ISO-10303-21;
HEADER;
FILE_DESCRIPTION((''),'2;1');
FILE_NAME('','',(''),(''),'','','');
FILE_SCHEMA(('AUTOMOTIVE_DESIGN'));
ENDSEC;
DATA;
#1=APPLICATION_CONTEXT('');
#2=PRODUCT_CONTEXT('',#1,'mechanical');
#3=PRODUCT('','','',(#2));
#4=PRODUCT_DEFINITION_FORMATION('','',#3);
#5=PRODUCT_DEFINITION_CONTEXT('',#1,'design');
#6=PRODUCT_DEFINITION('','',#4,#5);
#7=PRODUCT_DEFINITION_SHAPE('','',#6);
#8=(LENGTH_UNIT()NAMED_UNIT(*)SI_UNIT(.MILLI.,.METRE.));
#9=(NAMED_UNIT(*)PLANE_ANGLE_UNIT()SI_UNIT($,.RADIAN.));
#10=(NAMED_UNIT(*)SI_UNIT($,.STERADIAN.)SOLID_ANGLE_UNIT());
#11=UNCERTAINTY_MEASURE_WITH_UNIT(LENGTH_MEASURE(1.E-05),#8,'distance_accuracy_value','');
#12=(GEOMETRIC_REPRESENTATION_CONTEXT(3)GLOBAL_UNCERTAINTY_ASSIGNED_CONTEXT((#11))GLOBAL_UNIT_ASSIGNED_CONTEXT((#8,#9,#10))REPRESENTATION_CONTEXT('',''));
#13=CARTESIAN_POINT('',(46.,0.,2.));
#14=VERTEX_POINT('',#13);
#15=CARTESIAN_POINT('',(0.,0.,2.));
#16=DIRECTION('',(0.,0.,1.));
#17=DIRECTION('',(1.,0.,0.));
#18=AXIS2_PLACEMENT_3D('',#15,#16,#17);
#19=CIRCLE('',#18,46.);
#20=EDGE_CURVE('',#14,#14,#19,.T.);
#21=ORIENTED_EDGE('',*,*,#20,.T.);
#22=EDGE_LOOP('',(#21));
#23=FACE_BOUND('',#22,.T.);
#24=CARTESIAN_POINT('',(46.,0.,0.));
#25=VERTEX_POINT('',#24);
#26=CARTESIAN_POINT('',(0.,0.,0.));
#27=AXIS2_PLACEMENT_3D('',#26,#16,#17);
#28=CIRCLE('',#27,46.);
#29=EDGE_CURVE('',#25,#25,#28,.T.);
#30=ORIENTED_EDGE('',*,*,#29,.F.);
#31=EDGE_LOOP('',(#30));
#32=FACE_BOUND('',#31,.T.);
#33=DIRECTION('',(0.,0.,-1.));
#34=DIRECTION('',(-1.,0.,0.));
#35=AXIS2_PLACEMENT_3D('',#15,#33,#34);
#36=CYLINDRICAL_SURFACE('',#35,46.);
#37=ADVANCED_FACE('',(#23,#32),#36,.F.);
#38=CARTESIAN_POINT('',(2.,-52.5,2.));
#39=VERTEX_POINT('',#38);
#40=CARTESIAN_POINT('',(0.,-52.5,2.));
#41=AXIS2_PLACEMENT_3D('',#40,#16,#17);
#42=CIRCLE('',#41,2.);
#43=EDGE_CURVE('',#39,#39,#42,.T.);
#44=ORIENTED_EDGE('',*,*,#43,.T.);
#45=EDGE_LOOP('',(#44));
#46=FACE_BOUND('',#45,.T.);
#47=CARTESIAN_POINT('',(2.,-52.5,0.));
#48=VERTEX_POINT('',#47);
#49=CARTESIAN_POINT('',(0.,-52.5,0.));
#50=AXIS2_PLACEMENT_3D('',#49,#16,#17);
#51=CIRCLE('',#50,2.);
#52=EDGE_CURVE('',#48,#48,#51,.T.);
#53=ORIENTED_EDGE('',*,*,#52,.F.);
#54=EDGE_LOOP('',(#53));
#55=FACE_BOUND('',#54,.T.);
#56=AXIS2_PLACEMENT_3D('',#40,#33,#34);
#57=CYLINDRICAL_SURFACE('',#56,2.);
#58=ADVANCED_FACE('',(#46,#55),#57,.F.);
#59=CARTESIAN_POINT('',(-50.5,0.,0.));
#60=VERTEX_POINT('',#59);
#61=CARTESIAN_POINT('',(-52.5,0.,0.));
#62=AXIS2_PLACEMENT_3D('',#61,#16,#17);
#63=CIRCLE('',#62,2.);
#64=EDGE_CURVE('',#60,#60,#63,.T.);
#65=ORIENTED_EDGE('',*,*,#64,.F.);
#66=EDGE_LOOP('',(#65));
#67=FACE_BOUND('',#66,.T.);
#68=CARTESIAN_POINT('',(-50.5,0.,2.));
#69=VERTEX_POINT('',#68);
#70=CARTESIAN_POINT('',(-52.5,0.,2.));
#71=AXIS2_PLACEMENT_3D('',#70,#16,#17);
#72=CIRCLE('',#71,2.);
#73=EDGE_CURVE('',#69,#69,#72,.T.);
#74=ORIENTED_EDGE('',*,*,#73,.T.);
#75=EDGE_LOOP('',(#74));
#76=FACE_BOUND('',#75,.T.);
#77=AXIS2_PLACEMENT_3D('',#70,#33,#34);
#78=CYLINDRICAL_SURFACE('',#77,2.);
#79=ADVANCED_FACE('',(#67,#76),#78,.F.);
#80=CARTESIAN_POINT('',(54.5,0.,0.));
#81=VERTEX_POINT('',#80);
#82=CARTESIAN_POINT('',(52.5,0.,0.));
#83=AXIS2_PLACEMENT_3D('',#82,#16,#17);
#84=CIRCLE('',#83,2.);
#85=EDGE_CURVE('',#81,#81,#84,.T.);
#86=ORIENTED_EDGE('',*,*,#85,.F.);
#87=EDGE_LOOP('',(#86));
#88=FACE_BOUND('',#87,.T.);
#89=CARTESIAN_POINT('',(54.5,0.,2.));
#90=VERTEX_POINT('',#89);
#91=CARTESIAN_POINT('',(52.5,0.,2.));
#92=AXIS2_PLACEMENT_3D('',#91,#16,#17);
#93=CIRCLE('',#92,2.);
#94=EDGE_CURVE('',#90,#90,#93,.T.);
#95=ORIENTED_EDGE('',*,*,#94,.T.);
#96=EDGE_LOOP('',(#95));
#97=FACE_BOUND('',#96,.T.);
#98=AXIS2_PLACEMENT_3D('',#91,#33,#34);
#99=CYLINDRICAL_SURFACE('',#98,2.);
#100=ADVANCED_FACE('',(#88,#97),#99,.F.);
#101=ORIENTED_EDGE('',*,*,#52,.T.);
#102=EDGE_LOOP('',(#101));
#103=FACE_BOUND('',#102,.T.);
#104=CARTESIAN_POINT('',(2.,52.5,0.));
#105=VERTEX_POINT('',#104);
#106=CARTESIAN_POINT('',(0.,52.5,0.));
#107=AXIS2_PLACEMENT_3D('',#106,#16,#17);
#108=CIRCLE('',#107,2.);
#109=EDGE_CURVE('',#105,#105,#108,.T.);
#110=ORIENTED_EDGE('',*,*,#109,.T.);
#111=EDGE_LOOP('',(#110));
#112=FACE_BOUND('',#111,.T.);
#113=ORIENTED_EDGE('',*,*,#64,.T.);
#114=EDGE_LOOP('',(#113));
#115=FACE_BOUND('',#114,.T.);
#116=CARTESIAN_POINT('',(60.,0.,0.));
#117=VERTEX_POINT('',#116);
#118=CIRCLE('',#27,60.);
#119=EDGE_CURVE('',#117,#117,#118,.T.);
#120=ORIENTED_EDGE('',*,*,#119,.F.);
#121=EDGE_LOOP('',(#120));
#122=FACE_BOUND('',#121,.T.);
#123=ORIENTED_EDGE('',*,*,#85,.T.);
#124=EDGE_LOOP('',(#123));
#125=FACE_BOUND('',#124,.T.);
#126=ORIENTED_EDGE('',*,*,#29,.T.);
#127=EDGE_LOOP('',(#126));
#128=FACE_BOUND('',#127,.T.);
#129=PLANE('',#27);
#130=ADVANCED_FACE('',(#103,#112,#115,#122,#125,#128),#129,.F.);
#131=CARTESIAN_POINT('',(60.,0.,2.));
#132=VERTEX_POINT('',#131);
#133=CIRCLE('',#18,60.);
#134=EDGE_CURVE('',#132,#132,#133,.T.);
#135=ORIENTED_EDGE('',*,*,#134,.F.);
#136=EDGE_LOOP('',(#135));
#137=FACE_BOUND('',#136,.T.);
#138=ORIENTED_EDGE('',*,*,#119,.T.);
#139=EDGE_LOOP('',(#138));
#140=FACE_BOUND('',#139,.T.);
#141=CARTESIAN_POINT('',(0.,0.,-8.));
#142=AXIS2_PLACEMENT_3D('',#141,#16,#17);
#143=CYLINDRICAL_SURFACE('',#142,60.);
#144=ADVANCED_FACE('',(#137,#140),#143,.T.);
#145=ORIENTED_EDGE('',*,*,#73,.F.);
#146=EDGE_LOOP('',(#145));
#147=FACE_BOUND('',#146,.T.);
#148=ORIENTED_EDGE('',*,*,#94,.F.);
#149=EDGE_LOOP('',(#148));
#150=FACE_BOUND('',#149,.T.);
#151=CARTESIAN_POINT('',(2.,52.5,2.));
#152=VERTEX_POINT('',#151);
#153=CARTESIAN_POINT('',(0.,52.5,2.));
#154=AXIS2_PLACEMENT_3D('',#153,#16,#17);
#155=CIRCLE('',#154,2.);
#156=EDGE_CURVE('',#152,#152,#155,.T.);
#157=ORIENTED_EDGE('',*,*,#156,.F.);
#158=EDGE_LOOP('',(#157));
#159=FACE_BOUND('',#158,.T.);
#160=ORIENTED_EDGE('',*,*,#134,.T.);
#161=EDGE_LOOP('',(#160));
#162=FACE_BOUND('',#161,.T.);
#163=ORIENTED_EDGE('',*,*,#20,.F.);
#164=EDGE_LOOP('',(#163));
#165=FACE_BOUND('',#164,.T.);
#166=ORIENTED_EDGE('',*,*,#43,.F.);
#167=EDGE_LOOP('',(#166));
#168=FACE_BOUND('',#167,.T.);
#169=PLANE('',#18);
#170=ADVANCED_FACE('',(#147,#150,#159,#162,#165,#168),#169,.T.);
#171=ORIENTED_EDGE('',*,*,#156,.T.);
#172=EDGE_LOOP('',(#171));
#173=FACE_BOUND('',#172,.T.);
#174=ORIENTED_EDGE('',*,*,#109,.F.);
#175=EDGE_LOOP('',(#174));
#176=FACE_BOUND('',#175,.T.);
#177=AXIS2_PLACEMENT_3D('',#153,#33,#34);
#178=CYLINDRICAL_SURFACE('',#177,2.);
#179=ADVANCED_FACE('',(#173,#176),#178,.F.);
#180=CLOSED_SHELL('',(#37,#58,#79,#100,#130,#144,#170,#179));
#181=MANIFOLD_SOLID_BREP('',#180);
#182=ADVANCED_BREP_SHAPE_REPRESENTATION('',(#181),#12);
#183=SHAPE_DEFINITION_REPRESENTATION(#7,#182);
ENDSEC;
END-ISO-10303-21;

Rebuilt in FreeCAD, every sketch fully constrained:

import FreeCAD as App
import Part
import Sketcher

doc = App.newDocument("Part")
body = doc.addObject("PartDesign::Body", "Body")

# Sketch on XY plane
sketch1 = body.newObject("Sketcher::SketchObject", "Sketch")
sketch1.AttachmentSupport = (doc.getObject("XY_Plane"), [""])
sketch1.MapMode = "FlatFace"
sketch1.addGeometry(Part.Circle(App.Vector(0, 0, 0), App.Vector(0, 0, 1), 75), False)
sketch1.addGeometry(Part.Circle(App.Vector(0, -52.5, 0), App.Vector(0, 0, 1), 2), False)
sketch1.addGeometry(Part.Circle(App.Vector(-52.5, 0, 0), App.Vector(0, 0, 1), 2), False)
sketch1.addGeometry(Part.Circle(App.Vector(0, 0, 0), App.Vector(0, 0, 1), 46), False)
sketch1.addGeometry(Part.Circle(App.Vector(52.5, 0, 0), App.Vector(0, 0, 1), 2), False)
sketch1.addGeometry(Part.Circle(App.Vector(0, 52.5, 0), App.Vector(0, 0, 1), 2), False)
sketch1.addConstraint(Sketcher.Constraint("Coincident", 0, 3, -1, 1))
sketch1.addConstraint(Sketcher.Constraint("Coincident", 3, 3, -1, 1))
sketch1.addConstraint(Sketcher.Constraint("Equal", 1, 2))
sketch1.addConstraint(Sketcher.Constraint("Equal", 2, 4))
sketch1.addConstraint(Sketcher.Constraint("Equal", 4, 5))
sketch1.addConstraint(Sketcher.Constraint("Symmetric", 2, 3, 4, 3, -1, 1))
sketch1.addConstraint(Sketcher.Constraint("Symmetric", 1, 3, 5, 3, -1, 1))
sketch1.addConstraint(Sketcher.Constraint("PointOnObject", 1, 3, -2))
sketch1.addConstraint(Sketcher.Constraint("PointOnObject", 2, 3, -1))
sketch1.addConstraint(Sketcher.Constraint("Diameter", 0, 150.0))
sketch1.addConstraint(Sketcher.Constraint("Diameter", 1, 4.0))
sketch1.addConstraint(Sketcher.Constraint("Diameter", 3, 92.0))
sketch1.addConstraint(Sketcher.Constraint("DistanceX", 2, 3, 4, 3, 105.0))
sketch1.addConstraint(Sketcher.Constraint("DistanceY", 1, 3, 5, 3, 105.0))
pad1 = body.newObject("PartDesign::Pad", "Pad")
pad1.Profile = sketch1
pad1.Length = 2

# Sketch on XY plane
sketch2 = body.newObject("Sketcher::SketchObject", "Sketch001")
sketch2.AttachmentSupport = (doc.getObject("XY_Plane"), [""])
sketch2.MapMode = "FlatFace"
sketch2.AttachmentOffset = App.Placement(App.Vector(0, 0, 2), App.Rotation())
sketch2.addGeometry(Part.Circle(App.Vector(0, 69, 0), App.Vector(0, 0, 1), 1.5), False)
sketch2.addGeometry(Part.Circle(App.Vector(69, 0, 0), App.Vector(0, 0, 1), 1.5), False)
sketch2.addGeometry(Part.Circle(App.Vector(0, -69, 0), App.Vector(0, 0, 1), 1.5), False)
sketch2.addGeometry(Part.Circle(App.Vector(-69, 0, 0), App.Vector(0, 0, 1), 1.5), False)
sketch2.addConstraint(Sketcher.Constraint("Equal", 0, 1))
sketch2.addConstraint(Sketcher.Constraint("Equal", 1, 2))
sketch2.addConstraint(Sketcher.Constraint("Equal", 2, 3))
sketch2.addConstraint(Sketcher.Constraint("Symmetric", 0, 3, 2, 3, -1, 1))
sketch2.addConstraint(Sketcher.Constraint("Symmetric", 1, 3, 3, 3, -1, 1))
sketch2.addConstraint(Sketcher.Constraint("PointOnObject", 0, 3, -2))
sketch2.addConstraint(Sketcher.Constraint("PointOnObject", 1, 3, -1))
sketch2.addConstraint(Sketcher.Constraint("Diameter", 0, 3.0))
sketch2.addConstraint(Sketcher.Constraint("DistanceY", -1, 1, 0, 3, 69.0))
sketch2.addConstraint(Sketcher.Constraint("DistanceX", -1, 1, 1, 3, 69.0))
pocket1 = body.newObject("PartDesign::Pocket", "Pocket")
pocket1.Profile = sketch2
pocket1.Length = 2

# Sketch on XY plane
sketch3 = body.newObject("Sketcher::SketchObject", "Sketch002")
sketch3.AttachmentSupport = (doc.getObject("XY_Plane"), [""])
sketch3.MapMode = "FlatFace"
sketch3.AttachmentOffset = App.Placement(App.Vector(0, 0, 2), App.Rotation())
sketch3.addGeometry(Part.LineSegment(App.Vector(-97.214, 97.214, 0), App.Vector(-97.214, -97.214, 0)), False)
sketch3.addGeometry(Part.LineSegment(App.Vector(-97.214, -97.214, 0), App.Vector(97.214, -97.214, 0)), False)
sketch3.addGeometry(Part.LineSegment(App.Vector(97.214, -97.214, 0), App.Vector(97.214, 97.214, 0)), False)
sketch3.addGeometry(Part.LineSegment(App.Vector(97.214, 97.214, 0), App.Vector(-97.214, 97.214, 0)), False)
sketch3.addGeometry(Part.Circle(App.Vector(0, 0, 0), App.Vector(0, 0, 1), 60), False)
sketch3.addConstraint(Sketcher.Constraint("Coincident", 0, 2, 1, 1))
sketch3.addConstraint(Sketcher.Constraint("Coincident", 1, 2, 2, 1))
sketch3.addConstraint(Sketcher.Constraint("Coincident", 2, 2, 3, 1))
sketch3.addConstraint(Sketcher.Constraint("Coincident", 3, 2, 0, 1))
sketch3.addConstraint(Sketcher.Constraint("Vertical", 0))
sketch3.addConstraint(Sketcher.Constraint("Horizontal", 1))
sketch3.addConstraint(Sketcher.Constraint("Vertical", 2))
sketch3.addConstraint(Sketcher.Constraint("Horizontal", 3))
sketch3.addConstraint(Sketcher.Constraint("Coincident", 4, 3, -1, 1))
sketch3.addConstraint(Sketcher.Constraint("Symmetric", 0, 2, 2, 2, -1, 1))
sketch3.addConstraint(Sketcher.Constraint("Equal", 3, 0))
sketch3.addConstraint(Sketcher.Constraint("Diameter", 4, 120.0))
sketch3.addConstraint(Sketcher.Constraint("DistanceX", 1, 1, 1, 2, 194.428))
pocket2 = body.newObject("PartDesign::Pocket", "Pocket001")
pocket2.Profile = sketch3
pocket2.Length = 10

doc.recompute()
